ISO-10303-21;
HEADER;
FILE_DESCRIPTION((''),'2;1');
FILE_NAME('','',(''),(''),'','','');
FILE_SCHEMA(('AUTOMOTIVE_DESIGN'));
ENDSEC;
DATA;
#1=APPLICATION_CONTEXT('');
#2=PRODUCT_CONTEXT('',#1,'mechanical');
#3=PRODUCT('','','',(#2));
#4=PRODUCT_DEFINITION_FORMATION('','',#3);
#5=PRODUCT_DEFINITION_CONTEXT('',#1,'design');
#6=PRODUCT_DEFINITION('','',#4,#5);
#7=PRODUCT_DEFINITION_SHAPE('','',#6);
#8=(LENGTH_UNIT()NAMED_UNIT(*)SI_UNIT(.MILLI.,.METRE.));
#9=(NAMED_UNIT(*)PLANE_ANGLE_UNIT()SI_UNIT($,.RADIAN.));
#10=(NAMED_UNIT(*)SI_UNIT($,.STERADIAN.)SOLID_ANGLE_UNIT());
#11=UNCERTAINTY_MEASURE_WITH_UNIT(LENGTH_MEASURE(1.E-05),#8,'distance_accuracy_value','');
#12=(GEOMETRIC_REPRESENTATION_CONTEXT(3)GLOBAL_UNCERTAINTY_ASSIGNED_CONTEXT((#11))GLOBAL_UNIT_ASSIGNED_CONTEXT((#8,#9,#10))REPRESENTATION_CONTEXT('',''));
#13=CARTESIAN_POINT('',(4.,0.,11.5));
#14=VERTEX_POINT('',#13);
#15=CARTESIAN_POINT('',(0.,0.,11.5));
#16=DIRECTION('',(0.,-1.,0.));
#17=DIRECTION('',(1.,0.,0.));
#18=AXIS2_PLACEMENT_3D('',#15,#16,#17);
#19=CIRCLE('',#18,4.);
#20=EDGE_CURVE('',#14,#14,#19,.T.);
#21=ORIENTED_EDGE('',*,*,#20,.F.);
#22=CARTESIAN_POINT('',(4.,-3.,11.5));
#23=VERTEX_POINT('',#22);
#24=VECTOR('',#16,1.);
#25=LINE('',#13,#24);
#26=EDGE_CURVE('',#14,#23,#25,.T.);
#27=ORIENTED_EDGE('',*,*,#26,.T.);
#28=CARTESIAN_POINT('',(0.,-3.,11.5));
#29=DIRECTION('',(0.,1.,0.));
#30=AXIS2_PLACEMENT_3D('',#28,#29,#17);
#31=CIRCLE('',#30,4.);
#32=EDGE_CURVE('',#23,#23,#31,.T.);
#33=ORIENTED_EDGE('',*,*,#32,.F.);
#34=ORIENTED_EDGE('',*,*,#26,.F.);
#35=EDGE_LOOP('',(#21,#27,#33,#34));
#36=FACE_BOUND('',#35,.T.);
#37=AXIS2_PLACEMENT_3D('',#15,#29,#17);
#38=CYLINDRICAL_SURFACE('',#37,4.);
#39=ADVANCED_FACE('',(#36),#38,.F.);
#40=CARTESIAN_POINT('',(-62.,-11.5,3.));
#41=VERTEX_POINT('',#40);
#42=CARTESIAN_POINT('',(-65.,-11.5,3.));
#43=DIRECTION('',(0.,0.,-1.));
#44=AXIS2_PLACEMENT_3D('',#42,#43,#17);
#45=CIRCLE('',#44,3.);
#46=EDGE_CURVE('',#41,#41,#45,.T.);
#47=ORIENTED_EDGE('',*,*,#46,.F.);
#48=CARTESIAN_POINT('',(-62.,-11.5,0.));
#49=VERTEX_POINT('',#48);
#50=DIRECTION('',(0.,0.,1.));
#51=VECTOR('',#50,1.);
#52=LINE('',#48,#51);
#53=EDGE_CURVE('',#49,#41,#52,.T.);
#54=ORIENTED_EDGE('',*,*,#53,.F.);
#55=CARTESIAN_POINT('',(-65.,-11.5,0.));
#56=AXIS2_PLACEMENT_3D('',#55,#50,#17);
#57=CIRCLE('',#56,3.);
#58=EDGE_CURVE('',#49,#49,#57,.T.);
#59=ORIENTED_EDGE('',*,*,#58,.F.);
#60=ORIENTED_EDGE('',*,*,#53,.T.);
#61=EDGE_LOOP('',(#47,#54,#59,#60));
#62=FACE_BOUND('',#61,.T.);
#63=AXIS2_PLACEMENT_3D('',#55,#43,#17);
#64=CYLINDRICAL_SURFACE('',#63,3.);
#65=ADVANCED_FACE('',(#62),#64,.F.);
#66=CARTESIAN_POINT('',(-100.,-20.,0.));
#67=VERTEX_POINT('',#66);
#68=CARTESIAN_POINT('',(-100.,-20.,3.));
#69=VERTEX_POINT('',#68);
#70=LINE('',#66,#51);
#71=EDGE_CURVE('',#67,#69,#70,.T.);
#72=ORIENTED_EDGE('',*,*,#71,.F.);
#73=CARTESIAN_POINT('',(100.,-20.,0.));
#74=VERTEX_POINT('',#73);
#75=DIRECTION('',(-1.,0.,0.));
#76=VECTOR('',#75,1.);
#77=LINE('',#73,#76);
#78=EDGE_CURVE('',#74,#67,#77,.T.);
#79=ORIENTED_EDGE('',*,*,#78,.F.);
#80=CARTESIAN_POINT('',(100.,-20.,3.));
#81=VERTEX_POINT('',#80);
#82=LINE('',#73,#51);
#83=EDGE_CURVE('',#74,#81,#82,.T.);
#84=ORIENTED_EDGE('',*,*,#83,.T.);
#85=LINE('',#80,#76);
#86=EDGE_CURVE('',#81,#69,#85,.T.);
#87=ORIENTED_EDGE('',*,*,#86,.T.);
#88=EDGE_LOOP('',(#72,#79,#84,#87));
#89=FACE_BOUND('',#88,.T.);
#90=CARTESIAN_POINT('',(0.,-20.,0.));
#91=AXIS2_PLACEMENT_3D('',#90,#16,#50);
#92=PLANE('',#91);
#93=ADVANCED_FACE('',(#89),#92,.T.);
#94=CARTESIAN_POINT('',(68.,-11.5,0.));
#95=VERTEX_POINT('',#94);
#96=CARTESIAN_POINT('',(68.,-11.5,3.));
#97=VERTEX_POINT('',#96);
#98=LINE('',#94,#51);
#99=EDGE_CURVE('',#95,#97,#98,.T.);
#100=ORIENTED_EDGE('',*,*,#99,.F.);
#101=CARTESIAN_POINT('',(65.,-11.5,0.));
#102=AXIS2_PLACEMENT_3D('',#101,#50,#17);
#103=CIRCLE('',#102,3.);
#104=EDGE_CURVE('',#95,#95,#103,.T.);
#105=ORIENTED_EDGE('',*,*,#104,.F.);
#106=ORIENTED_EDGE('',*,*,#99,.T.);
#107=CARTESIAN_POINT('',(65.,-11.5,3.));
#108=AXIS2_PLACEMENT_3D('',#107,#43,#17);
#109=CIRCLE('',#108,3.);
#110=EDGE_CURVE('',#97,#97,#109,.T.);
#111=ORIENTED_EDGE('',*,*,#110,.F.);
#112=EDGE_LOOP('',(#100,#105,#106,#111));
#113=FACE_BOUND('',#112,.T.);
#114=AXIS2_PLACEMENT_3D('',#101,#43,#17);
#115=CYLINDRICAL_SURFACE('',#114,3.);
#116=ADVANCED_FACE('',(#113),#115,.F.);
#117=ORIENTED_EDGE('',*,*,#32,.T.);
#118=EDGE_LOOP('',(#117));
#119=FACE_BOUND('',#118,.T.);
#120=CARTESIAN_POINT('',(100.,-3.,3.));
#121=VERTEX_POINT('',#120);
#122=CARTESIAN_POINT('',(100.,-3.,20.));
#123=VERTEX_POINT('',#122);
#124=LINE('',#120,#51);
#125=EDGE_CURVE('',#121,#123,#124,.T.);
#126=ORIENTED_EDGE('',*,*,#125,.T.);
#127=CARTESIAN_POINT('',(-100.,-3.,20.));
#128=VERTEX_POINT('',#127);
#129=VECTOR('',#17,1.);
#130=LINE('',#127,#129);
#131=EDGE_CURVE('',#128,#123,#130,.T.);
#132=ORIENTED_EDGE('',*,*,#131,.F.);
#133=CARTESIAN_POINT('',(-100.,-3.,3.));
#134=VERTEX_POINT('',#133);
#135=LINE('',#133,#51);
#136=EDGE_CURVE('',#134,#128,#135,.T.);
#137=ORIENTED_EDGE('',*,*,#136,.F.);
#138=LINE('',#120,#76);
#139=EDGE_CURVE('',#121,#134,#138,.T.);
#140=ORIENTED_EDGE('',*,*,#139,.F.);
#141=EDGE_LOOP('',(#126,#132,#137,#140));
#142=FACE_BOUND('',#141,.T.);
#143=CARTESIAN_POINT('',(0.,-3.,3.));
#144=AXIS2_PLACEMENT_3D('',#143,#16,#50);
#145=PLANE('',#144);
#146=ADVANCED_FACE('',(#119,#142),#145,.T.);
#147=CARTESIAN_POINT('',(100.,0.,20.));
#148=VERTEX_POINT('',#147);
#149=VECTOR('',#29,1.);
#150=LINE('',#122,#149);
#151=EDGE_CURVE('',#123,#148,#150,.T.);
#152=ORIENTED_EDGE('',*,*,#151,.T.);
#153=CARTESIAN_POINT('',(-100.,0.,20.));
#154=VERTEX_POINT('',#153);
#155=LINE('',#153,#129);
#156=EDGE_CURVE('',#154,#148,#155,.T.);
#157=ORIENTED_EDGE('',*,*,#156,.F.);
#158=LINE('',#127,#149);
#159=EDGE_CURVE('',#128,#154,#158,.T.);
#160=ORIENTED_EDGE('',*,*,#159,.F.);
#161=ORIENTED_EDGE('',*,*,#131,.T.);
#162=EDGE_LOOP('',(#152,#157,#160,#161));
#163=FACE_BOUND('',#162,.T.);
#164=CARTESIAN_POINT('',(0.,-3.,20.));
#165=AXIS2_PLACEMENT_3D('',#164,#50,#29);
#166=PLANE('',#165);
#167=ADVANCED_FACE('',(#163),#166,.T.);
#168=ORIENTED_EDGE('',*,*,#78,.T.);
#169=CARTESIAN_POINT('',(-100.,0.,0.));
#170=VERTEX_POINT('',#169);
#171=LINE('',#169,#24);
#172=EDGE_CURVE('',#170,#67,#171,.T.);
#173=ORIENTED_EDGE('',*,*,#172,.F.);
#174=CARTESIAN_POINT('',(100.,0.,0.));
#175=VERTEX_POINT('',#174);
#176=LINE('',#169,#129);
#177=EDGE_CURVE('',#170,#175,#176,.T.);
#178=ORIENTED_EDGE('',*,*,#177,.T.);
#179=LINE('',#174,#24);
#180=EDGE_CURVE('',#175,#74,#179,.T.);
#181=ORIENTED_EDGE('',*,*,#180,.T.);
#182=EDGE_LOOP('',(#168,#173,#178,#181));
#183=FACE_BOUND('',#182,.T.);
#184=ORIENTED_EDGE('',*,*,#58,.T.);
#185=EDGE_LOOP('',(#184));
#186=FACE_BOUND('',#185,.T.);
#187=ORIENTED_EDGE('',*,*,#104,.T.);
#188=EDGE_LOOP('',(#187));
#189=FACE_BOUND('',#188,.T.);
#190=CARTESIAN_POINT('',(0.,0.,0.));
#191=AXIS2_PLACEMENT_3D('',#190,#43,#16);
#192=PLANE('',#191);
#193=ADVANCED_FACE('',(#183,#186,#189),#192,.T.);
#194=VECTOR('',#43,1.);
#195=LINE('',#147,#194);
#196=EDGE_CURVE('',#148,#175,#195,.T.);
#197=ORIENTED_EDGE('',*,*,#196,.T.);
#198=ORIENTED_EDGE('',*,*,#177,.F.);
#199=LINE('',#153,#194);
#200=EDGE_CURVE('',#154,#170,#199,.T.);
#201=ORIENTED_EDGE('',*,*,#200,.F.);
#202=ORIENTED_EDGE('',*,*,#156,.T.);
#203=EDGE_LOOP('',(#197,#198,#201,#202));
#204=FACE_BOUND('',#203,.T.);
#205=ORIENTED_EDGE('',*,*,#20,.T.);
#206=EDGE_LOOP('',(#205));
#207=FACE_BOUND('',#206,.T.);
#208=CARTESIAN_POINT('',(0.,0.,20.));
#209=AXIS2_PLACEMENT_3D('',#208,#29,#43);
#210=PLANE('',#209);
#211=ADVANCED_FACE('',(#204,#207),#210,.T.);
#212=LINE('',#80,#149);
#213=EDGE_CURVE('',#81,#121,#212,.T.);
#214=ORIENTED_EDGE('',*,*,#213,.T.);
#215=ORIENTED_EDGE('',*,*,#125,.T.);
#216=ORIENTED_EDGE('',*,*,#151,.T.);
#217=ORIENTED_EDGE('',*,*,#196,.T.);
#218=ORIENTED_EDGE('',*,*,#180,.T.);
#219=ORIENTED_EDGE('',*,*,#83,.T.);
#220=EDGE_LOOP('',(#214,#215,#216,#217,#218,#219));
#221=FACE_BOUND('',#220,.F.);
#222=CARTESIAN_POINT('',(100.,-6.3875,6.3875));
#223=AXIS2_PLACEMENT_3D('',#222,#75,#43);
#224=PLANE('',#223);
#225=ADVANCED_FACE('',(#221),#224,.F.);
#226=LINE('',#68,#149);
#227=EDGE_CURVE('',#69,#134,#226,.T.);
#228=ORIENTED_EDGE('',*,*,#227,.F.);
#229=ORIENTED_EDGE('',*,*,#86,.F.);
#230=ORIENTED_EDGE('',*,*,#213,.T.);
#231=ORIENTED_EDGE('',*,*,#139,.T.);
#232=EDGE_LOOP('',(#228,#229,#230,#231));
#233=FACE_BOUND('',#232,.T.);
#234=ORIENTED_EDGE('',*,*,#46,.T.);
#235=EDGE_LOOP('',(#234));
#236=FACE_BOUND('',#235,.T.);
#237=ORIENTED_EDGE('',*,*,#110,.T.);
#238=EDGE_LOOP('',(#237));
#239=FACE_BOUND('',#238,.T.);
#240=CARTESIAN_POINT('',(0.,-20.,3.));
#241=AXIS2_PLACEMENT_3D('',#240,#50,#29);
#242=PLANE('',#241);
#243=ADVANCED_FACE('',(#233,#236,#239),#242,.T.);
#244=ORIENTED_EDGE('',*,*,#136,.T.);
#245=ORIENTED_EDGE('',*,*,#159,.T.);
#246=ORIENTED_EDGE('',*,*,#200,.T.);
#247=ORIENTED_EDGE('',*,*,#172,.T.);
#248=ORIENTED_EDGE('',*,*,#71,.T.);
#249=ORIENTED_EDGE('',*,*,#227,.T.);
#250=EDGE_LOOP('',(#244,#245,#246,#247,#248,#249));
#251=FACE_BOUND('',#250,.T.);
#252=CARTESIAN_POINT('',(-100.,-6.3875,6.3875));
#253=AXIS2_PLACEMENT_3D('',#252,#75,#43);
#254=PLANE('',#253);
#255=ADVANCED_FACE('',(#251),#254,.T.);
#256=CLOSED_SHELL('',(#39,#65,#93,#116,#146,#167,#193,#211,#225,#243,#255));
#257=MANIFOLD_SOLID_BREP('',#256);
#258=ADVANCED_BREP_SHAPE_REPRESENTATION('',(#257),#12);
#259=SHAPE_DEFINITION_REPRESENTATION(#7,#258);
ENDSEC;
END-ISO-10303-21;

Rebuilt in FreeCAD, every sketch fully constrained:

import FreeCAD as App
import Part
import Sketcher
from FreeCAD import Vector
Q = App.Units.Quantity


def add_polygon(sketch, points):
    """Adds a closed chain of lines whose ends are joined by coincident constraints."""
    first, n = sketch.GeometryCount, len(points)
    for a, b in zip(points, points[1:] + points[:1]):
        sketch.addGeometry(Part.LineSegment(App.Vector(*a, 0), App.Vector(*b, 0)), False)
    for i in range(n):
        sketch.addConstraint(Sketcher.Constraint("Coincident", first + i, 2, first + (i + 1) % n, 1))

doc = App.newDocument("Part")
body = doc.addObject("PartDesign::Body", "Body")

sketch1 = body.newObject("Sketcher::SketchObject", "Sketch")
sketch1.AttachmentSupport = (doc.getObject("YZ_Plane"), [""])
sketch1.MapMode = "FlatFace"
add_polygon(sketch1, [(-20, 0), (0, 0), (0, 20), (-3, 20), (-3, 3), (-20, 3)])
sketch1.addConstraint([
    Sketcher.Constraint("Horizontal", 0),
    Sketcher.Constraint("Vertical", 1),
    Sketcher.Constraint("Horizontal", 2),
    Sketcher.Constraint("Vertical", 3),
    Sketcher.Constraint("Horizontal", 4),
    Sketcher.Constraint("Vertical", 5),
    Sketcher.Constraint("Coincident", 0, 2, -1, 1),
    Sketcher.Constraint("Equal", 0, 1),
    Sketcher.Constraint("Equal", 4, 3),
    Sketcher.Constraint("DistanceX", 0, 1, 0, 2, Q("20 mm")),
    Sketcher.Constraint("DistanceX", 2, 2, 2, 1, Q("3 mm")),
])
pad1 = body.newObject("PartDesign::Pad", "Pad")
pad1.Profile = sketch1
pad1.Length = 200
pad1.Midplane = True

sketch2 = body.newObject("Sketcher::SketchObject", "Sketch001")
sketch2.AttachmentSupport = (doc.getObject("XY_Plane"), [""])
sketch2.MapMode = "FlatFace"
sketch2.addGeometry([
    Part.Circle(Vector(-65, -11.5, 0), Vector(0, 0, 1), 3),
    Part.Circle(Vector(65, -11.5, 0), Vector(0, 0, 1), 3),
], False)
sketch2.addConstraint([
    Sketcher.Constraint("Equal", 0, 1),
    Sketcher.Constraint("Symmetric", 0, 3, 1, 3, -2),
    Sketcher.Constraint("Diameter", 0, Q("6 mm")),
    Sketcher.Constraint("DistanceX", 0, 3, -1, 1, Q("65 mm")),
    Sketcher.Constraint("DistanceY", 0, 3, -1, 1, Q("11.5 mm")),
])
pocket1 = body.newObject("PartDesign::Pocket", "Pocket")
pocket1.Profile = sketch2
pocket1.Length = 3
pocket1.Reversed = True

sketch3 = body.newObject("Sketcher::SketchObject", "Sketch002")
sketch3.AttachmentSupport = (doc.getObject("XZ_Plane"), [""])
sketch3.MapMode = "FlatFace"
sketch3.addGeometry(Part.Circle(Vector(0, 11.5, 0), Vector(0, 0, 1), 4), False)
sketch3.addConstraint([
    Sketcher.Constraint("PointOnObject", 0, 3, -2),
    Sketcher.Constraint("Diameter", 0, Q("8 mm")),
    Sketcher.Constraint("DistanceY", -1, 1, 0, 3, Q("11.5 mm")),
])
pocket2 = body.newObject("PartDesign::Pocket", "Pocket001")
pocket2.Profile = sketch3
pocket2.Type = "UpToFirst"
pocket2.Reversed = True

doc.recompute()
